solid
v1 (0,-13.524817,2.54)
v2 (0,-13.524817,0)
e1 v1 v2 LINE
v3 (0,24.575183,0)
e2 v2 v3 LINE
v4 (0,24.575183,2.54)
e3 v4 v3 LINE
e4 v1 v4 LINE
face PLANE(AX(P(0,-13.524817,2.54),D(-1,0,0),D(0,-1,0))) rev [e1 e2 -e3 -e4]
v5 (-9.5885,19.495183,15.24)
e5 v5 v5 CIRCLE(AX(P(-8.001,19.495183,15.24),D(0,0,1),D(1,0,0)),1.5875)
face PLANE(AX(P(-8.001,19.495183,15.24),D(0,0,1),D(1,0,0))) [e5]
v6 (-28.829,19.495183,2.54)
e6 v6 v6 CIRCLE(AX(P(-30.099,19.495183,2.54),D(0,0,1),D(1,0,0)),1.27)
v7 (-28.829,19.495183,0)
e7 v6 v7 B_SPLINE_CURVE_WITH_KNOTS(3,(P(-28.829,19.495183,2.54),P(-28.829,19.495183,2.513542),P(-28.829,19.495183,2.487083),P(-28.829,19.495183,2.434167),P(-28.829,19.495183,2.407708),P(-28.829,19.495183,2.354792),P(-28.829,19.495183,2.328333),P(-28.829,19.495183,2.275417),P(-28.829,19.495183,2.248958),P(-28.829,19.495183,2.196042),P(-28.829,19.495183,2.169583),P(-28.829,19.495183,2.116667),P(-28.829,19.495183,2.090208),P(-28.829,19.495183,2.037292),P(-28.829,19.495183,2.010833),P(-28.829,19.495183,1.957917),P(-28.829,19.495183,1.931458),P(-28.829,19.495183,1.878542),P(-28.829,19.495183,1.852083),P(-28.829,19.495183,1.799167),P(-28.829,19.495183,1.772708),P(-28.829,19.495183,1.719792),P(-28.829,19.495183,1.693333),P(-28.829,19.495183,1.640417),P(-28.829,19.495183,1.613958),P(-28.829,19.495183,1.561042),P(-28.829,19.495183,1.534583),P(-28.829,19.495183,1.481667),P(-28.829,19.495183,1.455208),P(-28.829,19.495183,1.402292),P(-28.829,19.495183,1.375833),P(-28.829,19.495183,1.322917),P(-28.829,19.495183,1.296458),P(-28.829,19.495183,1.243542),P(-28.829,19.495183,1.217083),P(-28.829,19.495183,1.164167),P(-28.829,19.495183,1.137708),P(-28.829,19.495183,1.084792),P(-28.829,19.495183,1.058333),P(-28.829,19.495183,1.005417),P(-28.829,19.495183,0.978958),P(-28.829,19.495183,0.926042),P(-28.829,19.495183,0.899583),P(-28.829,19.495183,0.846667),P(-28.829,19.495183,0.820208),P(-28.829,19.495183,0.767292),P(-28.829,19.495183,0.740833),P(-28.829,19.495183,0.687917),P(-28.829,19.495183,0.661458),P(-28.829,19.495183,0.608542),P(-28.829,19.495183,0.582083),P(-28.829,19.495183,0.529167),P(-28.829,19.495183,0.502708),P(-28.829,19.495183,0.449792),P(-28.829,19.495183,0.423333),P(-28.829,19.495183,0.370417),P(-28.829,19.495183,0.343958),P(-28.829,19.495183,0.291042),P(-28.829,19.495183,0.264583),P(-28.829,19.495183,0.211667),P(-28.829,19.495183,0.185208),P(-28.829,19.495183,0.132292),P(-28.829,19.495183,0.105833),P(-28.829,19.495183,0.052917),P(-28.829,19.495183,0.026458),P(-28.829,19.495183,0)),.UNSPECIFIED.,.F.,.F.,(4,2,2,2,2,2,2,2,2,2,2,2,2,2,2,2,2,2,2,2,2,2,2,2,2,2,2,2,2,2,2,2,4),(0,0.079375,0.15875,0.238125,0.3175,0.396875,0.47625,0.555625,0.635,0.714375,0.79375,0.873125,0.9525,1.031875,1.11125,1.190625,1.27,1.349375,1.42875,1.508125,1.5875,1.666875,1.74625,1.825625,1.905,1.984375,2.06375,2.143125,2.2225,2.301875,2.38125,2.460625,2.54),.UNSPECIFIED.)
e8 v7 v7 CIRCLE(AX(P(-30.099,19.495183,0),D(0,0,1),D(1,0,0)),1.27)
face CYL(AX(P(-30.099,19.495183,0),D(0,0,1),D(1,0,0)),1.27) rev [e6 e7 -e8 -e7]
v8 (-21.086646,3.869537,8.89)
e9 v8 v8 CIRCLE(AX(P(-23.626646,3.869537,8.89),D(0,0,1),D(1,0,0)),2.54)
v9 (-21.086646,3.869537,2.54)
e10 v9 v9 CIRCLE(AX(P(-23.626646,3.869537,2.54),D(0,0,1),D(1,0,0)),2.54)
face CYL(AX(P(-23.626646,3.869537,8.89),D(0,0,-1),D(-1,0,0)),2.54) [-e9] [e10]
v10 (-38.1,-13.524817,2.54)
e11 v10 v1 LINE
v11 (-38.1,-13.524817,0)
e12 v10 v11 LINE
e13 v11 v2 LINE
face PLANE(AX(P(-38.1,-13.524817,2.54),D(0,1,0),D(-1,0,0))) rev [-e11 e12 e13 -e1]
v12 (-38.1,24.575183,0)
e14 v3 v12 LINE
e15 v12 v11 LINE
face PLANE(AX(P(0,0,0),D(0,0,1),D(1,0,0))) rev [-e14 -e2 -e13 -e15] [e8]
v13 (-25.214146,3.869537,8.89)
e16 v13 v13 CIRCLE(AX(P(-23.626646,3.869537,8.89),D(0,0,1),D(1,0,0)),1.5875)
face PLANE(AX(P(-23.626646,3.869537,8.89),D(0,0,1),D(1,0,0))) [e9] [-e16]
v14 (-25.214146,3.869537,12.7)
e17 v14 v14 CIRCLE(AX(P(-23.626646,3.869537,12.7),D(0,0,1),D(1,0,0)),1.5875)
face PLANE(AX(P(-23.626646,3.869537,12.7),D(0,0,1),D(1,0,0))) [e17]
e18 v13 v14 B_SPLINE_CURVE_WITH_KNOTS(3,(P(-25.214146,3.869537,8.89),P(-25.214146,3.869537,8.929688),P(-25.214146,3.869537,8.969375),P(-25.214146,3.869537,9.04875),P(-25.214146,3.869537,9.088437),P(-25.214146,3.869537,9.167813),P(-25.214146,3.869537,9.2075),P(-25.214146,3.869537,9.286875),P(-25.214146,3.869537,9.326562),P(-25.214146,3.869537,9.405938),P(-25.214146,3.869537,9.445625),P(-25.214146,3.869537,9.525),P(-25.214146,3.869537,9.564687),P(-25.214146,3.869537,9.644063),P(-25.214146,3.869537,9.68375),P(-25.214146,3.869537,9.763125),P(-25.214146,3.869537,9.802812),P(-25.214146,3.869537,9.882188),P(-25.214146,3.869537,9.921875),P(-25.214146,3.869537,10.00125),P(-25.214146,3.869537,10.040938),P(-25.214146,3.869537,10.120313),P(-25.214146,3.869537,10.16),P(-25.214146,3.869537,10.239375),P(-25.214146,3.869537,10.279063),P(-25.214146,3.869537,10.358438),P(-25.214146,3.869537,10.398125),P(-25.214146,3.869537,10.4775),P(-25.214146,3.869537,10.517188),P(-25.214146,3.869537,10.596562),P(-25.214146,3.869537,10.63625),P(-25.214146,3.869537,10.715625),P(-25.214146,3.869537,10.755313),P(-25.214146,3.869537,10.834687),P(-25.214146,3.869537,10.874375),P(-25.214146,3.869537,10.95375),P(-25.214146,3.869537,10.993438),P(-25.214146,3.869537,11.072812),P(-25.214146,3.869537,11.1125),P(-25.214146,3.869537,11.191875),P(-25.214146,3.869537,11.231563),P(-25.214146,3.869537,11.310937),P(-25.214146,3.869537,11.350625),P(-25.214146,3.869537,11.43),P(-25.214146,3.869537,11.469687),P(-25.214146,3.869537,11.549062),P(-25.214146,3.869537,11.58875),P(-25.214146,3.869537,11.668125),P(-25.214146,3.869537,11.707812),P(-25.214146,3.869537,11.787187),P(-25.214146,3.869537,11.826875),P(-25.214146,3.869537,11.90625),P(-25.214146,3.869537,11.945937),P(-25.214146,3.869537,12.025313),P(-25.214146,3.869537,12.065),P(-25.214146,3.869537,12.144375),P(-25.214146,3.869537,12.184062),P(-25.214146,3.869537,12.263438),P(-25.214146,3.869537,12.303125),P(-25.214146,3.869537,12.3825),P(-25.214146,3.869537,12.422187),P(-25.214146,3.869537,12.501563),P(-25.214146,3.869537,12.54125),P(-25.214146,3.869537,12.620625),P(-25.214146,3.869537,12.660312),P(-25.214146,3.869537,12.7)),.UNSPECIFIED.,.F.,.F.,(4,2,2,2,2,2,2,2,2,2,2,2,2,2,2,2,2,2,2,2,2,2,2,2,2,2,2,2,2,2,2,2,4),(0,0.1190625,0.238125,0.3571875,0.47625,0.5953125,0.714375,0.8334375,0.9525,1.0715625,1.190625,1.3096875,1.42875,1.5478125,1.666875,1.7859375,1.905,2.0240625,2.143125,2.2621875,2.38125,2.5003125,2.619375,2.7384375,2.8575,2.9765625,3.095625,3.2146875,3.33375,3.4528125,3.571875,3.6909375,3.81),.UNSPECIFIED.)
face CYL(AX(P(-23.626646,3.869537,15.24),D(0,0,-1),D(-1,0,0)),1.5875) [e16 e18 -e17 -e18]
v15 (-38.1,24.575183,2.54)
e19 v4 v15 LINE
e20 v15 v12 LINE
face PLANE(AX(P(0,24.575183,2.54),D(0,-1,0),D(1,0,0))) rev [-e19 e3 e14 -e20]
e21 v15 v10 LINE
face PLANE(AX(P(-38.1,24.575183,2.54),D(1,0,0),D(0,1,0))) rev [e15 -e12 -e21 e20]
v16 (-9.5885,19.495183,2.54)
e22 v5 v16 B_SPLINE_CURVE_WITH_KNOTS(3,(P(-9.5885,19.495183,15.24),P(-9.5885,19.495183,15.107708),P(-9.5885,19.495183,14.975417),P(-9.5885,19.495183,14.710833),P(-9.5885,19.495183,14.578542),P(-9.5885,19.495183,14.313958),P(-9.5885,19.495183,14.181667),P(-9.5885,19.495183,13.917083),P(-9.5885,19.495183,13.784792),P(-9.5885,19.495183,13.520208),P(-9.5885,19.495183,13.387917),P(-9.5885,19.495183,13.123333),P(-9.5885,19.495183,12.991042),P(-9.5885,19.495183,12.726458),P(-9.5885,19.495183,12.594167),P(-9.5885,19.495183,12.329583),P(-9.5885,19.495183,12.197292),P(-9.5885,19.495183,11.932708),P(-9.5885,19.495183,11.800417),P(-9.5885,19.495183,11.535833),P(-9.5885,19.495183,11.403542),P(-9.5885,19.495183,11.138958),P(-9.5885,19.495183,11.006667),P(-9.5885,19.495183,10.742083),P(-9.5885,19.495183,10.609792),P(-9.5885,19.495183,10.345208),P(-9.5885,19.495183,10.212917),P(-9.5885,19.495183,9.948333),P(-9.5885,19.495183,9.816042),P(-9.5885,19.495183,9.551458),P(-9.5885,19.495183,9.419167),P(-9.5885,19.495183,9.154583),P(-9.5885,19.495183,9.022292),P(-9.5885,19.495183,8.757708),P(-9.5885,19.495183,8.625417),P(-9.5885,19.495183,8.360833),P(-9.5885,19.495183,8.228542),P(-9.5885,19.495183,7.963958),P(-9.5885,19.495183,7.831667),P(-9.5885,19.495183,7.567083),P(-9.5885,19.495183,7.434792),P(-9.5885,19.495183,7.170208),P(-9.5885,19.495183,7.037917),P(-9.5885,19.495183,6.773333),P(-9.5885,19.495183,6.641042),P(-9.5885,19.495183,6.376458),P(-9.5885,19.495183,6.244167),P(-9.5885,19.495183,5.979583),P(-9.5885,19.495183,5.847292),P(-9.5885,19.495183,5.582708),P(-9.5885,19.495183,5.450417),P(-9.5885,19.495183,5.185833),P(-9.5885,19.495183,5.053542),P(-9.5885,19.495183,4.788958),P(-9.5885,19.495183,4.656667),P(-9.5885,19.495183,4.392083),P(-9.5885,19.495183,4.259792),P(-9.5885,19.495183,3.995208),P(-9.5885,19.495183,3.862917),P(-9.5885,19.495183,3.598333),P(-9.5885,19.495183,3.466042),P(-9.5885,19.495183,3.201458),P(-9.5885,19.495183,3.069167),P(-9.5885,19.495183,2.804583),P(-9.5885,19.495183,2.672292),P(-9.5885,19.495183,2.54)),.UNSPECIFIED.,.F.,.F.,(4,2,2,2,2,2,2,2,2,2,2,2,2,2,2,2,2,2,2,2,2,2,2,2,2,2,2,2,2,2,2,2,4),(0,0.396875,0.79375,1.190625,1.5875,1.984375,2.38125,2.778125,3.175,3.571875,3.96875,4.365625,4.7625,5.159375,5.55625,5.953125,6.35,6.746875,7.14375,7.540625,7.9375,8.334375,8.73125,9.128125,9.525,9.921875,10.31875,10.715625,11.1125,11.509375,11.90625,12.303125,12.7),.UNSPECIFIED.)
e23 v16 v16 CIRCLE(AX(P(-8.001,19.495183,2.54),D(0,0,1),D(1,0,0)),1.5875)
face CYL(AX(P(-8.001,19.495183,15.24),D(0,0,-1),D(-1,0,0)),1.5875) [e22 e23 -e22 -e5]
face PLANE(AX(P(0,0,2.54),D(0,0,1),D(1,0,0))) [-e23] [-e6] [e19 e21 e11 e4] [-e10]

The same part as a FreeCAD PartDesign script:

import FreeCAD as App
import Part
import Sketcher
from FreeCAD import Vector
Q = App.Units.Quantity

doc = App.newDocument("Part")
body = doc.addObject("PartDesign::Body", "Body")

# Sketch on XY plane
sketch1 = doc.addObject("Sketcher::SketchObject", "Sketch")
body.addObject(sketch1)
sketch1.AttachmentSupport = (doc.XY_Plane, [""])
sketch1.MapMode = "FlatFace"
sketch1.addGeometry([
    Part.LineSegment(Vector(-38, 25, 0), Vector(-38, -14, 0)),
    Part.LineSegment(Vector(-38, -14, 0), Vector(0, -14, 0)),
    Part.LineSegment(Vector(0, -14, 0), Vector(0, 25, 0)),
    Part.LineSegment(Vector(0, 25, 0), Vector(-38, 25, 0)),
], False)
sketch1.addConstraint([
    Sketcher.Constraint("Coincident", 0, 2, 1, 1),
    Sketcher.Constraint("Coincident", 1, 2, 2, 1),
    Sketcher.Constraint("Coincident", 2, 2, 3, 1),
    Sketcher.Constraint("Coincident", 3, 2, 0, 1),
    Sketcher.Constraint("Vertical", 0),
    Sketcher.Constraint("Horizontal", 1),
    Sketcher.Constraint("Vertical", 2),
    Sketcher.Constraint("Horizontal", 3),
    Sketcher.Constraint("PointOnObject", 1, 2, -2),
    Sketcher.Constraint("Equal", 3, 0),
    Sketcher.Constraint("DistanceX", 1, 1, 1, 2, Q("1.5 in")),
    Sketcher.Constraint("DistanceY", 0, 2, -1, 1, Q("13.524817 mm")),
])
pad1 = doc.addObject("PartDesign::Pad", "Pad")
body.addObject(pad1)
pad1.Profile = sketch1
pad1.Length = Q("0.1 in")

# Sketch on XY plane
sketch2 = doc.addObject("Sketcher::SketchObject", "Sketch001")
body.addObject(sketch2)
sketch2.AttachmentSupport = (doc.XY_Plane, [""])
sketch2.MapMode = "FlatFace"
sketch2.AttachmentOffset = App.Placement(Vector(0, 0, 0.1 * 25.4), App.Rotation())
sketch2.addGeometry([
    Part.Circle(Vector(-8, 19.5, 0), Vector(0, 0, 1), 1.6),
    Part.Circle(Vector(-23.6, 3.9, 0), Vector(0, 0, 1), 1.6),
    Part.Circle(Vector(-30.1, 19.5, 0), Vector(0, 0, 1), 1.3),
], False)
sketch2.addConstraint([
    Sketcher.Constraint("Equal", 0, 1),
    Sketcher.Constraint("Horizontal", 0, 3, 2, 3),
    Sketcher.Constraint("Diameter", 2, Q("0.1 in")),
    Sketcher.Constraint("Diameter", 0, Q("0.125 in")),
    Sketcher.Constraint("DistanceX", 2, 3, 0, 3, Q("0.87 in")),
    Sketcher.Constraint("DistanceX", 0, 3, -1, 1, Q("0.315 in")),
    Sketcher.Constraint("DistanceY", -1, 1, 0, 3, Q("19.495183 mm")),
    Sketcher.Constraint("DistanceX", 1, 3, -1, 1, Q("23.626646 mm")),
    Sketcher.Constraint("DistanceY", -1, 1, 1, 3, Q("3.869537 mm")),
])
pad2 = doc.addObject("PartDesign::Pad", "Pad001")
body.addObject(pad2)
pad2.Profile = sketch2
pad2.Length = Q("0.5 in")

# Sketch on XY plane
sketch3 = doc.addObject("Sketcher::SketchObject", "Sketch002")
body.addObject(sketch3)
sketch3.AttachmentSupport = (doc.XY_Plane, [""])
sketch3.MapMode = "FlatFace"
sketch3.AttachmentOffset = App.Placement(Vector(0, 0, 0.6 * 25.4), App.Rotation())
sketch3.addGeometry(Part.Circle(Vector(-30.1, 19.5, 0), Vector(0, 0, 1), 1.3), False)
sketch3.addConstraint([
    Sketcher.Constraint("Diameter", 0, Q("0.1 in")),
    Sketcher.Constraint("DistanceX", 0, 3, -1, 1, Q("1.185 in")),
    Sketcher.Constraint("DistanceY", -1, 1, 0, 3, Q("19.495183 mm")),
])
pocket1 = doc.addObject("PartDesign::Pocket", "Pocket")
body.addObject(pocket1)
pocket1.Profile = sketch3
pocket1.Type = "ThroughAll"

# Sketch on XY plane
sketch4 = doc.addObject("Sketcher::SketchObject", "Sketch003")
body.addObject(sketch4)
sketch4.AttachmentSupport = (doc.XY_Plane, [""])
sketch4.MapMode = "FlatFace"
sketch4.AttachmentOffset = App.Placement(Vector(0, 0, 0.1 * 25.4), App.Rotation())
sketch4.addGeometry(Part.Circle(Vector(-23.6, 3.9, 0), Vector(0, 0, 1), 2.5), False)
sketch4.addConstraint([
    Sketcher.Constraint("Diameter", 0, Q("0.2 in")),
    Sketcher.Constraint("DistanceX", 0, 3, -1, 1, Q("23.626646 mm")),
    Sketcher.Constraint("DistanceY", -1, 1, 0, 3, Q("3.869537 mm")),
])
pad3 = doc.addObject("PartDesign::Pad", "Pad002")
body.addObject(pad3)
pad3.Profile = sketch4
pad3.Length = Q("0.25 in")

# Sketch on XY plane
sketch5 = doc.addObject("Sketcher::SketchObject", "Sketch004")
body.addObject(sketch5)
sketch5.AttachmentSupport = (doc.XY_Plane, [""])
sketch5.MapMode = "FlatFace"
sketch5.AttachmentOffset = App.Placement(Vector(0, 0, 0.5 * 25.4), App.Rotation())
sketch5.addGeometry(Part.Circle(Vector(-23.6, 3.9, 0), Vector(0, 0, 1), 1.6), False)
sketch5.addConstraint([
    Sketcher.Constraint("Diameter", 0, Q("0.125 in")),
    Sketcher.Constraint("DistanceX", 0, 3, -1, 1, Q("23.626646 mm")),
    Sketcher.Constraint("DistanceY", -1, 1, 0, 3, Q("3.869537 mm")),
])
pocket2 = doc.addObject("PartDesign::Pocket", "Pocket001")
body.addObject(pocket2)
pocket2.Profile = sketch5
pocket2.Length = Q("0.1 in")
pocket2.Reversed = True

doc.recompute()
